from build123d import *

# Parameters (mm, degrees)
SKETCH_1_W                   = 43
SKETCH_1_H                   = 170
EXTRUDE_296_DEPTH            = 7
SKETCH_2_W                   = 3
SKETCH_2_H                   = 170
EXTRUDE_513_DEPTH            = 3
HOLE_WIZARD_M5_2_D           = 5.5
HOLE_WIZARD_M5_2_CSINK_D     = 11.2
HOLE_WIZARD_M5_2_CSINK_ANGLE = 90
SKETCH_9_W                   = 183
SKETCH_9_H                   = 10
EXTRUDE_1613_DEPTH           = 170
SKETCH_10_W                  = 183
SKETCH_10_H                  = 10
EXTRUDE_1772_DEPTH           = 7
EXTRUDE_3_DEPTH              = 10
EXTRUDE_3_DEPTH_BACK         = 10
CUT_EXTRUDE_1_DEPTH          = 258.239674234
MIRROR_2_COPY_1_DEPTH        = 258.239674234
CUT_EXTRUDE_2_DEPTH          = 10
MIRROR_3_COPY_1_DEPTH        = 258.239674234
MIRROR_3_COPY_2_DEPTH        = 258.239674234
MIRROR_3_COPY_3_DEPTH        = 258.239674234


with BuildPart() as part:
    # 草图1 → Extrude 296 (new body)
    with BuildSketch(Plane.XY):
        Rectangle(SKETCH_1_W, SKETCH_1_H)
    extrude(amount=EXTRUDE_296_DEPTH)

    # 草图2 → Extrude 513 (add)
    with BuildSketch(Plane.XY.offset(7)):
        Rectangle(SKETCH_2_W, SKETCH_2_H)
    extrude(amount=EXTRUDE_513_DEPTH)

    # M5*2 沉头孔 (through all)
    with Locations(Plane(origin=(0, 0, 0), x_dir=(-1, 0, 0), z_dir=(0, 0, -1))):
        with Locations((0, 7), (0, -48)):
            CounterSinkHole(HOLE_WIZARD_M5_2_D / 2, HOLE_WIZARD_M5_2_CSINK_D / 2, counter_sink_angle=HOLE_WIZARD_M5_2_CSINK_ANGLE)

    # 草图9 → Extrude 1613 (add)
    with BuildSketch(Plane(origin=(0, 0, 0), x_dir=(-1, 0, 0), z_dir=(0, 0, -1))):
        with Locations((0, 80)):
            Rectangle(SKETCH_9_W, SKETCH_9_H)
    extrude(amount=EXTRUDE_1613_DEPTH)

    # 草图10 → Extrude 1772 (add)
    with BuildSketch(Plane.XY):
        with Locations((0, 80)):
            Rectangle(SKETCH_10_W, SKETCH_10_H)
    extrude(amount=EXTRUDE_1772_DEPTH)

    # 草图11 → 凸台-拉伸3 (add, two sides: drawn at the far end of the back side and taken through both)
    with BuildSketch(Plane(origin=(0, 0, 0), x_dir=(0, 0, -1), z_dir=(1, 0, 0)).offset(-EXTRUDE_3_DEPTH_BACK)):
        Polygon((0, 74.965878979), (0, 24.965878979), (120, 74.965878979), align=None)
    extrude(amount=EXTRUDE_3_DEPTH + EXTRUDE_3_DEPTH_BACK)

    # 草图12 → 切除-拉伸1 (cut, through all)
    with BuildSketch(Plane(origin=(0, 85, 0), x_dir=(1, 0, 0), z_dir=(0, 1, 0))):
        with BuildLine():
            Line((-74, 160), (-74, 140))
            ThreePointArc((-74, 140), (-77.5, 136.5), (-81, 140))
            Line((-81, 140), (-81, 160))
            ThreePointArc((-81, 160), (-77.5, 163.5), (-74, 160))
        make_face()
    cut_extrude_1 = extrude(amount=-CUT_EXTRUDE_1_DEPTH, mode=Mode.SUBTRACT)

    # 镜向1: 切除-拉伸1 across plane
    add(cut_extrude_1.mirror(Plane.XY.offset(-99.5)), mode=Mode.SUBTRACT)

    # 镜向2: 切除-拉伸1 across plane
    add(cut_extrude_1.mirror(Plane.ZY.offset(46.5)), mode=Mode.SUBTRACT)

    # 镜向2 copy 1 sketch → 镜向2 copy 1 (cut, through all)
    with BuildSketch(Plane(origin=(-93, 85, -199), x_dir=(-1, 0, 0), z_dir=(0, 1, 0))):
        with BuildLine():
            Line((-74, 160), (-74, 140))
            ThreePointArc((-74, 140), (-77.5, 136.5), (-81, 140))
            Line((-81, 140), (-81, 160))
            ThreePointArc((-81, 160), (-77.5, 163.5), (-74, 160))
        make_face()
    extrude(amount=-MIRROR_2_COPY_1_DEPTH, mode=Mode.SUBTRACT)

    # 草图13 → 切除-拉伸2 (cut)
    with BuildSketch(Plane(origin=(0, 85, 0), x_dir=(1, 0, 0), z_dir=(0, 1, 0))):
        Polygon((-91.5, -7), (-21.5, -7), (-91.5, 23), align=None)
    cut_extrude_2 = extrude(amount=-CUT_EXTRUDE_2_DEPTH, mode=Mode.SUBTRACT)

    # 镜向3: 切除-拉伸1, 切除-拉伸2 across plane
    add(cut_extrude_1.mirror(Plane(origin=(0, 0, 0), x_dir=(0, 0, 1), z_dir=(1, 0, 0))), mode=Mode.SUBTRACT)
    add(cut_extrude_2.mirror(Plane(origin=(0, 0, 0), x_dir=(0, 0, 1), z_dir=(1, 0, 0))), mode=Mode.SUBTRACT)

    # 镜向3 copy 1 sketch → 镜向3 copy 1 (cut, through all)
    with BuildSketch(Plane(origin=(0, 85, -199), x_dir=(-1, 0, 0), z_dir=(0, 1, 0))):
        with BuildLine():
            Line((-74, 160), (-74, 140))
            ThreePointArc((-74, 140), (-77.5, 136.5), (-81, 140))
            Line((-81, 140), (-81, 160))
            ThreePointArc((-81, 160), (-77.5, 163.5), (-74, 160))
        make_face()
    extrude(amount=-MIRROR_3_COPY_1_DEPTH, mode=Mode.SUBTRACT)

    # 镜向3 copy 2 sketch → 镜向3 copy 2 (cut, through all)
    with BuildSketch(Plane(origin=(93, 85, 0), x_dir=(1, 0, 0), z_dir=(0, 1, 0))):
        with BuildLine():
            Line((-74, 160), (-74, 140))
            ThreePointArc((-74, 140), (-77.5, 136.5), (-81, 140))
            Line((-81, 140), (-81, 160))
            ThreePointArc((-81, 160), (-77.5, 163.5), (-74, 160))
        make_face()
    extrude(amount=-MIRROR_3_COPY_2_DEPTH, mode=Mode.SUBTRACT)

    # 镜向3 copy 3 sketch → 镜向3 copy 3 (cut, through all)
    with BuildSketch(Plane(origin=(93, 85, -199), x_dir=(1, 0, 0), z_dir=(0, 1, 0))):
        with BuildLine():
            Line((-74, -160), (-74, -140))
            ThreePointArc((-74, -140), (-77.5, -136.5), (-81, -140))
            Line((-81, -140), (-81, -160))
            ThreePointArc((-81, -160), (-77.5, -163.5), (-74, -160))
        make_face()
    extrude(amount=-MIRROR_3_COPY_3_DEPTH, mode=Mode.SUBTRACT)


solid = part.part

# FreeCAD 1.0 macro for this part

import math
import FreeCAD as App
import Part
import Sketcher


def add_polygon(sketch, points):
    """Adds a closed chain of lines whose ends are joined by coincident constraints."""
    first, n = sketch.GeometryCount, len(points)
    for a, b in zip(points, points[1:] + points[:1]):
        sketch.addGeometry(Part.LineSegment(App.Vector(*a, 0), App.Vector(*b, 0)), False)
    for i in range(n):
        sketch.addConstraint(Sketcher.Constraint("Coincident", first + i, 2, first + (i + 1) % n, 1))

doc = App.newDocument("Part")
body = doc.addObject("PartDesign::Body", "Body")

sketch1 = body.newObject("Sketcher::SketchObject", "Sketch")
sketch1.AttachmentSupport = (doc.getObject("XY_Plane"), [""])
sketch1.MapMode = "FlatFace"
add_polygon(sketch1, [(-21.5, 85), (-21.5, -85), (21.5, -85), (21.5, 85)])
sketch1.addConstraint([
    Sketcher.Constraint("Vertical", 0),
    Sketcher.Constraint("Horizontal", 1),
    Sketcher.Constraint("Vertical", 2),
    Sketcher.Constraint("Horizontal", 3),
    Sketcher.Constraint("Symmetric", 0, 2, 2, 2, -1, 1),
    Sketcher.Constraint("DistanceX", 1, 1, 1, 2, 43.0),
    Sketcher.Constraint("DistanceY", 0, 2, 0, 1, 170.0),
])
pad1 = body.newObject("PartDesign::Pad", "Pad")
pad1.Profile = sketch1
pad1.Length = 7

sketch2 = body.newObject("Sketcher::SketchObject", "Sketch001")
sketch2.AttachmentSupport = (doc.getObject("XY_Plane"), [""])
sketch2.MapMode = "FlatFace"
sketch2.AttachmentOffset = App.Placement(App.Vector(0, 0, 7), App.Rotation())
add_polygon(sketch2, [(-1.5, 85), (-1.5, -85), (1.5, -85), (1.5, 85)])
sketch2.addConstraint([
    Sketcher.Constraint("Vertical", 0),
    Sketcher.Constraint("Horizontal", 1),
    Sketcher.Constraint("Vertical", 2),
    Sketcher.Constraint("Horizontal", 3),
    Sketcher.Constraint("Symmetric", 0, 2, 2, 2, -1, 1),
    Sketcher.Constraint("DistanceX", 1, 1, 1, 2, 3.0),
    Sketcher.Constraint("DistanceY", 0, 2, 0, 1, 170.0),
])
pad2 = body.newObject("PartDesign::Pad", "Pad001")
pad2.Profile = sketch2
pad2.Length = 3

sketch3 = body.newObject("Sketcher::SketchObject", "Sketch002")
sketch3.AttachmentSupport = (doc.getObject("XY_Plane"), [""])
sketch3.MapMode = "FlatFace"
sketch3.addGeometry([
    Part.Circle(App.Vector(0, 7, 0), App.Vector(0, 0, 1), 2.75),
    Part.Circle(App.Vector(0, -48, 0), App.Vector(0, 0, 1), 2.75),
], False)
sketch3.addConstraint([
    Sketcher.Constraint("Equal", 0, 1),
    Sketcher.Constraint("PointOnObject", 0, 3, -2),
    Sketcher.Constraint("PointOnObject", 1, 3, -2),
    Sketcher.Constraint("Diameter", 0, 5.5),
    Sketcher.Constraint("DistanceY", -1, 1, 0, 3, 7.0),
    Sketcher.Constraint("DistanceY", 1, 3, -1, 1, 48.0),
])
doc.recompute()
hole = body.newObject("PartDesign::Hole", "Hole")
hole.Profile = sketch3
hole.ThreadType = "None"
hole.Diameter = 5.5
hole.DepthType = "ThroughAll"
hole.HoleCutType = "Countersink"
hole.HoleCutDiameter = 11.2
hole.HoleCutCountersinkAngle = 90
hole.Reversed = True

sketch4 = body.newObject("Sketcher::SketchObject", "Sketch003")
sketch4.AttachmentSupport = (doc.getObject("XY_Plane"), [""])
sketch4.MapMode = "FlatFace"
add_polygon(sketch4, [(91.5, 85), (91.5, 75), (-91.5, 75), (-91.5, 85)])
sketch4.addConstraint([
    Sketcher.Constraint("Vertical", 0),
    Sketcher.Constraint("Horizontal", 1),
    Sketcher.Constraint("Vertical", 2),
    Sketcher.Constraint("Horizontal", 3),
    Sketcher.Constraint("DistanceX", 1, 2, 1, 1, 183.0),
    Sketcher.Constraint("DistanceY", 0, 2, 0, 1, 10.0),
    Sketcher.Constraint("DistanceY", -1, 1, 0, 2, 75.0),
    Sketcher.Constraint("DistanceX", -1, 1, 0, 2, 91.5),
])
pad3 = body.newObject("PartDesign::Pad", "Pad002")
pad3.Profile = sketch4
pad3.Length = 170
pad3.Reversed = True

sketch5 = body.newObject("Sketcher::SketchObject", "Sketch004")
sketch5.AttachmentSupport = (doc.getObject("XY_Plane"), [""])
sketch5.MapMode = "FlatFace"
add_polygon(sketch5, [(-91.5, 85), (-91.5, 75), (91.5, 75), (91.5, 85)])
sketch5.addConstraint([
    Sketcher.Constraint("Vertical", 0),
    Sketcher.Constraint("Horizontal", 1),
    Sketcher.Constraint("Vertical", 2),
    Sketcher.Constraint("Horizontal", 3),
    Sketcher.Constraint("DistanceX", 1, 1, 1, 2, 183.0),
    Sketcher.Constraint("DistanceY", 0, 2, 0, 1, 10.0),
    Sketcher.Constraint("DistanceY", -1, 1, 0, 2, 75.0),
    Sketcher.Constraint("DistanceX", 0, 2, -1, 1, 91.5),
])
pad4 = body.newObject("PartDesign::Pad", "Pad003")
pad4.Profile = sketch5
pad4.Length = 7

sketch6 = body.newObject("Sketcher::SketchObject", "Sketch005")
sketch6.AttachmentSupport = (doc.getObject("YZ_Plane"), [""])
sketch6.MapMode = "FlatFace"
add_polygon(sketch6, [(74.965879, 0), (24.965879, 0), (74.965879, -120)])
sketch6.addConstraint([
    Sketcher.Constraint("Horizontal", 0),
    Sketcher.Constraint("Vertical", 2),
    Sketcher.Constraint("PointOnObject", 0, 2, -1),
    Sketcher.Constraint("DistanceX", 0, 2, 0, 1, 50.0),
    Sketcher.Constraint("DistanceY", 2, 1, 2, 2, 120.0),
    Sketcher.Constraint("DistanceX", -1, 1, 0, 2, 24.965879),
])
pad5 = body.newObject("PartDesign::Pad", "Pad004")
pad5.Profile = sketch6
pad5.Type = "TwoLengths"
pad5.Length = 10
pad5.Length2 = 10

sketch7 = body.newObject("Sketcher::SketchObject", "Sketch006")
sketch7.AttachmentSupport = (doc.getObject("XZ_Plane"), [""])
sketch7.MapMode = "FlatFace"
sketch7.AttachmentOffset = App.Placement(App.Vector(0, 0, -85), App.Rotation())
sketch7.addGeometry([
    Part.LineSegment(App.Vector(-74, -140, 0), App.Vector(-74, -160, 0)),
    Part.ArcOfCircle(Part.Circle(App.Vector(-77.5, -160, 0), App.Vector(0, 0, 1), 3.5), math.radians(180), math.radians(360)),
    Part.LineSegment(App.Vector(-81, -160, 0), App.Vector(-81, -140, 0)),
    Part.ArcOfCircle(Part.Circle(App.Vector(-77.5, -140, 0), App.Vector(0, 0, 1), 3.5), math.radians(0), math.radians(180)),
], False)
sketch7.addConstraint([
    Sketcher.Constraint("Tangent", 0, 2, 1, 2),
    Sketcher.Constraint("Tangent", 1, 1, 2, 1),
    Sketcher.Constraint("Tangent", 2, 2, 3, 2),
    Sketcher.Constraint("Tangent", 3, 1, 0, 1),
    Sketcher.Constraint("Vertical", 0),
    Sketcher.Constraint("Vertical", 2),
    Sketcher.Constraint("Radius", 1, 3.5),
    Sketcher.Constraint("DistanceY", 0, 2, 0, 1, 20.0),
    Sketcher.Constraint("DistanceY", 1, 3, -1, 1, 160.0),
    Sketcher.Constraint("DistanceX", 0, 2, -1, 1, 74.0),
])
pocket1 = body.newObject("PartDesign::Pocket", "Pocket")
pocket1.Profile = sketch7
pocket1.Type = "ThroughAll"
pocket1.Reversed = True
doc.recompute()

datumplane = body.newObject("PartDesign::Plane", "DatumPlane")
datumplane.AttachmentSupport = (doc.getObject("XY_Plane"), [""])
datumplane.MapMode = "FlatFace"
datumplane.AttachmentOffset = App.Placement(App.Vector(0, 0, -99.5), App.Rotation())
mirrored = body.newObject("PartDesign::Mirrored", "Mirrored")
mirrored.Originals = [pocket1]
mirrored.MirrorPlane = (datumplane, [""])
body.Tip = mirrored
doc.recompute()

datumplane2 = body.newObject("PartDesign::Plane", "DatumPlane001")
datumplane2.AttachmentSupport = (doc.getObject("YZ_Plane"), [""])
datumplane2.MapMode = "FlatFace"
datumplane2.AttachmentOffset = App.Placement(App.Vector(0, 0, -46.5), App.Rotation())
mirrored2 = body.newObject("PartDesign::Mirrored", "Mirrored001")
mirrored2.Originals = [pocket1]
mirrored2.MirrorPlane = (datumplane2, [""])
body.Tip = mirrored2

sketch8 = body.newObject("Sketcher::SketchObject", "Sketch007")
sketch8.AttachmentSupport = (doc.getObject("XZ_Plane"), [""])
sketch8.MapMode = "FlatFace"
sketch8.AttachmentOffset = App.Placement(App.Vector(0, 0, -85), App.Rotation())
sketch8.addGeometry([
    Part.LineSegment(App.Vector(-19, -59, 0), App.Vector(-19, -39, 0)),
    Part.ArcOfCircle(Part.Circle(App.Vector(-15.5, -39, 0), App.Vector(0, 0, 1), 3.5), math.radians(0), math.radians(180)),
    Part.LineSegment(App.Vector(-12, -39, 0), App.Vector(-12, -59, 0)),
    Part.ArcOfCircle(Part.Circle(App.Vector(-15.5, -59, 0), App.Vector(0, 0, 1), 3.5), math.radians(180), math.radians(360)),
], False)
sketch8.addConstraint([
    Sketcher.Constraint("Tangent", 0, 2, 1, 2),
    Sketcher.Constraint("Tangent", 1, 1, 2, 1),
    Sketcher.Constraint("Tangent", 2, 2, 3, 2),
    Sketcher.Constraint("Tangent", 3, 1, 0, 1),
    Sketcher.Constraint("Vertical", 0),
    Sketcher.Constraint("Vertical", 2),
    Sketcher.Constraint("Radius", 1, 3.5),
    Sketcher.Constraint("DistanceY", 0, 1, 0, 2, 20.0),
    Sketcher.Constraint("DistanceY", 1, 3, -1, 1, 39.0),
    Sketcher.Constraint("DistanceX", 0, 2, -1, 1, 19.0),
])
pocket2 = body.newObject("PartDesign::Pocket", "Pocket001")
pocket2.Profile = sketch8
pocket2.Type = "ThroughAll"
pocket2.Reversed = True

sketch9 = body.newObject("Sketcher::SketchObject", "Sketch008")
sketch9.AttachmentSupport = (doc.getObject("XZ_Plane"), [""])
sketch9.MapMode = "FlatFace"
sketch9.AttachmentOffset = App.Placement(App.Vector(0, 0, -85), App.Rotation())
add_polygon(sketch9, [(-91.5, 7), (-21.5, 7), (-91.5, -23)])
sketch9.addConstraint([
    Sketcher.Constraint("Horizontal", 0),
    Sketcher.Constraint("Vertical", 2),
    Sketcher.Constraint("DistanceX", 0, 1, 0, 2, 70.0),
    Sketcher.Constraint("DistanceY", 2, 1, 2, 2, 30.0),
    Sketcher.Constraint("DistanceY", -1, 1, 0, 2, 7.0),
    Sketcher.Constraint("DistanceX", 0, 2, -1, 1, 21.5),
])
pocket3 = body.newObject("PartDesign::Pocket", "Pocket002")
pocket3.Profile = sketch9
pocket3.Length = 10
pocket3.Reversed = True
doc.recompute()

mirrored3 = body.newObject("PartDesign::Mirrored", "Mirrored002")
mirrored3.Originals = [pocket1, pocket3]
mirrored3.MirrorPlane = (doc.getObject("YZ_Plane"), [""])
body.Tip = mirrored3

sketch10 = body.newObject("Sketcher::SketchObject", "Sketch009")
sketch10.AttachmentSupport = (doc.getObject("XZ_Plane"), [""])
sketch10.MapMode = "FlatFace"
sketch10.AttachmentOffset = App.Placement(App.Vector(0, 0, -85), App.Rotation())
sketch10.addGeometry([
    Part.LineSegment(App.Vector(74, -59, 0), App.Vector(74, -39, 0)),
    Part.ArcOfCircle(Part.Circle(App.Vector(77.5, -39, 0), App.Vector(0, 0, 1), 3.5), math.radians(0), math.radians(180)),
    Part.LineSegment(App.Vector(81, -39, 0), App.Vector(81, -59, 0)),
    Part.ArcOfCircle(Part.Circle(App.Vector(77.5, -59, 0), App.Vector(0, 0, 1), 3.5), math.radians(180), math.radians(360)),
], False)
sketch10.addConstraint([
    Sketcher.Constraint("Tangent", 0, 2, 1, 2),
    Sketcher.Constraint("Tangent", 1, 1, 2, 1),
    Sketcher.Constraint("Tangent", 2, 2, 3, 2),
    Sketcher.Constraint("Tangent", 3, 1, 0, 1),
    Sketcher.Constraint("Vertical", 0),
    Sketcher.Constraint("Vertical", 2),
    Sketcher.Constraint("Radius", 1, 3.5),
    Sketcher.Constraint("DistanceY", 0, 1, 0, 2, 20.0),
    Sketcher.Constraint("DistanceY", 1, 3, -1, 1, 39.0),
    Sketcher.Constraint("DistanceX", -1, 1, 0, 2, 74.0),
])
pocket4 = body.newObject("PartDesign::Pocket", "Pocket003")
pocket4.Profile = sketch10
pocket4.Type = "ThroughAll"
pocket4.Reversed = True

sketch11 = body.newObject("Sketcher::SketchObject", "Sketch010")
sketch11.AttachmentSupport = (doc.getObject("XZ_Plane"), [""])
sketch11.MapMode = "FlatFace"
sketch11.AttachmentOffset = App.Placement(App.Vector(0, 0, -85), App.Rotation())
sketch11.addGeometry([
    Part.LineSegment(App.Vector(19, -140, 0), App.Vector(19, -160, 0)),
    Part.ArcOfCircle(Part.Circle(App.Vector(15.5, -160, 0), App.Vector(0, 0, 1), 3.5), math.radians(180), math.radians(360)),
    Part.LineSegment(App.Vector(12, -160, 0), App.Vector(12, -140, 0)),
    Part.ArcOfCircle(Part.Circle(App.Vector(15.5, -140, 0), App.Vector(0, 0, 1), 3.5), math.radians(0), math.radians(180)),
], False)
sketch11.addConstraint([
    Sketcher.Constraint("Tangent", 0, 2, 1, 2),
    Sketcher.Constraint("Tangent", 1, 1, 2, 1),
    Sketcher.Constraint("Tangent", 2, 2, 3, 2),
    Sketcher.Constraint("Tangent", 3, 1, 0, 1),
    Sketcher.Constraint("Vertical", 0),
    Sketcher.Constraint("Vertical", 2),
    Sketcher.Constraint("Radius", 1, 3.5),
    Sketcher.Constraint("DistanceY", 0, 2, 0, 1, 20.0),
    Sketcher.Constraint("DistanceY", 1, 3, -1, 1, 160.0),
    Sketcher.Constraint("DistanceX", -1, 1, 0, 2, 19.0),
])
pocket5 = body.newObject("PartDesign::Pocket", "Pocket004")
pocket5.Profile = sketch11
pocket5.Type = "ThroughAll"
pocket5.Reversed = True

sketch12 = body.newObject("Sketcher::SketchObject", "Sketch011")
sketch12.AttachmentSupport = (doc.getObject("XZ_Plane"), [""])
sketch12.MapMode = "FlatFace"
sketch12.AttachmentOffset = App.Placement(App.Vector(0, 0, -85), App.Rotation())
sketch12.addGeometry([
    Part.LineSegment(App.Vector(19, -39, 0), App.Vector(19, -59, 0)),
    Part.ArcOfCircle(Part.Circle(App.Vector(15.5, -59, 0), App.Vector(0, 0, 1), 3.5), math.radians(180), math.radians(360)),
    Part.LineSegment(App.Vector(12, -59, 0), App.Vector(12, -39, 0)),
    Part.ArcOfCircle(Part.Circle(App.Vector(15.5, -39, 0), App.Vector(0, 0, 1), 3.5), math.radians(0), math.radians(180)),
], False)
sketch12.addConstraint([
    Sketcher.Constraint("Tangent", 0, 2, 1, 2),
    Sketcher.Constraint("Tangent", 1, 1, 2, 1),
    Sketcher.Constraint("Tangent", 2, 2, 3, 2),
    Sketcher.Constraint("Tangent", 3, 1, 0, 1),
    Sketcher.Constraint("Vertical", 0),
    Sketcher.Constraint("Vertical", 2),
    Sketcher.Constraint("Radius", 1, 3.5),
    Sketcher.Constraint("DistanceY", 0, 2, 0, 1, 20.0),
    Sketcher.Constraint("DistanceY", 1, 3, -1, 1, 59.0),
    Sketcher.Constraint("DistanceX", -1, 1, 0, 2, 19.0),
])
pocket6 = body.newObject("PartDesign::Pocket", "Pocket005")
pocket6.Profile = sketch12
pocket6.Type = "ThroughAll"
pocket6.Reversed = True

doc.recompute()
